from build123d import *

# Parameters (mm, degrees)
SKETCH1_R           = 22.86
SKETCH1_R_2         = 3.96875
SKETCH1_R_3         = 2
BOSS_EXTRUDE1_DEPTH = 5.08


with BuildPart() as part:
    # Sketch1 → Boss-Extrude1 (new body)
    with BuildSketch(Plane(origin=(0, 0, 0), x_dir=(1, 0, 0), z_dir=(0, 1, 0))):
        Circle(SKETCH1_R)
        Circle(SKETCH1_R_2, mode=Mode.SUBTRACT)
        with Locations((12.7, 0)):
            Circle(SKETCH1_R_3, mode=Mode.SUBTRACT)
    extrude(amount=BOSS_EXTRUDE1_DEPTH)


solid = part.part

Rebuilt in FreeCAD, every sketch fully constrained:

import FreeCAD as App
import Part
import Sketcher
Q = App.Units.Quantity

doc = App.newDocument("Part")
body = doc.addObject("PartDesign::Body", "Body")

# Sketch on XZ plane
sketch1 = body.newObject("Sketcher::SketchObject", "Sketch")
sketch1.AttachmentSupport = (doc.getObject("XZ_Plane"), [""])
sketch1.MapMode = "FlatFace"
sketch1.addGeometry([
    Part.Circle(App.Vector(0, 0, 0), App.Vector(0, 0, 1), 22.86),
    Part.Circle(App.Vector(0, 0, 0), App.Vector(0, 0, 1), 3.96875),
    Part.Circle(App.Vector(12.7, 0, 0), App.Vector(0, 0, 1), 2),
], False)
sketch1.addConstraint([
    Sketcher.Constraint("Coincident", 0, 3, -1, 1),
    Sketcher.Constraint("Coincident", 1, 3, -1, 1),
    Sketcher.Constraint("PointOnObject", 2, 3, -1),
    Sketcher.Constraint("Diameter", 0, Q("1.8 in")),
    Sketcher.Constraint("Diameter", 1, Q("0.3125 in")),
    Sketcher.Constraint("DistanceX", -1, 1, 2, 3, Q("0.5 in")),
    Sketcher.Constraint("Diameter", 2, 4.0),
])
pad1 = body.newObject("PartDesign::Pad", "Pad")
pad1.Profile = sketch1
pad1.Length = Q("0.2 in")
pad1.Reversed = True

doc.recompute()
